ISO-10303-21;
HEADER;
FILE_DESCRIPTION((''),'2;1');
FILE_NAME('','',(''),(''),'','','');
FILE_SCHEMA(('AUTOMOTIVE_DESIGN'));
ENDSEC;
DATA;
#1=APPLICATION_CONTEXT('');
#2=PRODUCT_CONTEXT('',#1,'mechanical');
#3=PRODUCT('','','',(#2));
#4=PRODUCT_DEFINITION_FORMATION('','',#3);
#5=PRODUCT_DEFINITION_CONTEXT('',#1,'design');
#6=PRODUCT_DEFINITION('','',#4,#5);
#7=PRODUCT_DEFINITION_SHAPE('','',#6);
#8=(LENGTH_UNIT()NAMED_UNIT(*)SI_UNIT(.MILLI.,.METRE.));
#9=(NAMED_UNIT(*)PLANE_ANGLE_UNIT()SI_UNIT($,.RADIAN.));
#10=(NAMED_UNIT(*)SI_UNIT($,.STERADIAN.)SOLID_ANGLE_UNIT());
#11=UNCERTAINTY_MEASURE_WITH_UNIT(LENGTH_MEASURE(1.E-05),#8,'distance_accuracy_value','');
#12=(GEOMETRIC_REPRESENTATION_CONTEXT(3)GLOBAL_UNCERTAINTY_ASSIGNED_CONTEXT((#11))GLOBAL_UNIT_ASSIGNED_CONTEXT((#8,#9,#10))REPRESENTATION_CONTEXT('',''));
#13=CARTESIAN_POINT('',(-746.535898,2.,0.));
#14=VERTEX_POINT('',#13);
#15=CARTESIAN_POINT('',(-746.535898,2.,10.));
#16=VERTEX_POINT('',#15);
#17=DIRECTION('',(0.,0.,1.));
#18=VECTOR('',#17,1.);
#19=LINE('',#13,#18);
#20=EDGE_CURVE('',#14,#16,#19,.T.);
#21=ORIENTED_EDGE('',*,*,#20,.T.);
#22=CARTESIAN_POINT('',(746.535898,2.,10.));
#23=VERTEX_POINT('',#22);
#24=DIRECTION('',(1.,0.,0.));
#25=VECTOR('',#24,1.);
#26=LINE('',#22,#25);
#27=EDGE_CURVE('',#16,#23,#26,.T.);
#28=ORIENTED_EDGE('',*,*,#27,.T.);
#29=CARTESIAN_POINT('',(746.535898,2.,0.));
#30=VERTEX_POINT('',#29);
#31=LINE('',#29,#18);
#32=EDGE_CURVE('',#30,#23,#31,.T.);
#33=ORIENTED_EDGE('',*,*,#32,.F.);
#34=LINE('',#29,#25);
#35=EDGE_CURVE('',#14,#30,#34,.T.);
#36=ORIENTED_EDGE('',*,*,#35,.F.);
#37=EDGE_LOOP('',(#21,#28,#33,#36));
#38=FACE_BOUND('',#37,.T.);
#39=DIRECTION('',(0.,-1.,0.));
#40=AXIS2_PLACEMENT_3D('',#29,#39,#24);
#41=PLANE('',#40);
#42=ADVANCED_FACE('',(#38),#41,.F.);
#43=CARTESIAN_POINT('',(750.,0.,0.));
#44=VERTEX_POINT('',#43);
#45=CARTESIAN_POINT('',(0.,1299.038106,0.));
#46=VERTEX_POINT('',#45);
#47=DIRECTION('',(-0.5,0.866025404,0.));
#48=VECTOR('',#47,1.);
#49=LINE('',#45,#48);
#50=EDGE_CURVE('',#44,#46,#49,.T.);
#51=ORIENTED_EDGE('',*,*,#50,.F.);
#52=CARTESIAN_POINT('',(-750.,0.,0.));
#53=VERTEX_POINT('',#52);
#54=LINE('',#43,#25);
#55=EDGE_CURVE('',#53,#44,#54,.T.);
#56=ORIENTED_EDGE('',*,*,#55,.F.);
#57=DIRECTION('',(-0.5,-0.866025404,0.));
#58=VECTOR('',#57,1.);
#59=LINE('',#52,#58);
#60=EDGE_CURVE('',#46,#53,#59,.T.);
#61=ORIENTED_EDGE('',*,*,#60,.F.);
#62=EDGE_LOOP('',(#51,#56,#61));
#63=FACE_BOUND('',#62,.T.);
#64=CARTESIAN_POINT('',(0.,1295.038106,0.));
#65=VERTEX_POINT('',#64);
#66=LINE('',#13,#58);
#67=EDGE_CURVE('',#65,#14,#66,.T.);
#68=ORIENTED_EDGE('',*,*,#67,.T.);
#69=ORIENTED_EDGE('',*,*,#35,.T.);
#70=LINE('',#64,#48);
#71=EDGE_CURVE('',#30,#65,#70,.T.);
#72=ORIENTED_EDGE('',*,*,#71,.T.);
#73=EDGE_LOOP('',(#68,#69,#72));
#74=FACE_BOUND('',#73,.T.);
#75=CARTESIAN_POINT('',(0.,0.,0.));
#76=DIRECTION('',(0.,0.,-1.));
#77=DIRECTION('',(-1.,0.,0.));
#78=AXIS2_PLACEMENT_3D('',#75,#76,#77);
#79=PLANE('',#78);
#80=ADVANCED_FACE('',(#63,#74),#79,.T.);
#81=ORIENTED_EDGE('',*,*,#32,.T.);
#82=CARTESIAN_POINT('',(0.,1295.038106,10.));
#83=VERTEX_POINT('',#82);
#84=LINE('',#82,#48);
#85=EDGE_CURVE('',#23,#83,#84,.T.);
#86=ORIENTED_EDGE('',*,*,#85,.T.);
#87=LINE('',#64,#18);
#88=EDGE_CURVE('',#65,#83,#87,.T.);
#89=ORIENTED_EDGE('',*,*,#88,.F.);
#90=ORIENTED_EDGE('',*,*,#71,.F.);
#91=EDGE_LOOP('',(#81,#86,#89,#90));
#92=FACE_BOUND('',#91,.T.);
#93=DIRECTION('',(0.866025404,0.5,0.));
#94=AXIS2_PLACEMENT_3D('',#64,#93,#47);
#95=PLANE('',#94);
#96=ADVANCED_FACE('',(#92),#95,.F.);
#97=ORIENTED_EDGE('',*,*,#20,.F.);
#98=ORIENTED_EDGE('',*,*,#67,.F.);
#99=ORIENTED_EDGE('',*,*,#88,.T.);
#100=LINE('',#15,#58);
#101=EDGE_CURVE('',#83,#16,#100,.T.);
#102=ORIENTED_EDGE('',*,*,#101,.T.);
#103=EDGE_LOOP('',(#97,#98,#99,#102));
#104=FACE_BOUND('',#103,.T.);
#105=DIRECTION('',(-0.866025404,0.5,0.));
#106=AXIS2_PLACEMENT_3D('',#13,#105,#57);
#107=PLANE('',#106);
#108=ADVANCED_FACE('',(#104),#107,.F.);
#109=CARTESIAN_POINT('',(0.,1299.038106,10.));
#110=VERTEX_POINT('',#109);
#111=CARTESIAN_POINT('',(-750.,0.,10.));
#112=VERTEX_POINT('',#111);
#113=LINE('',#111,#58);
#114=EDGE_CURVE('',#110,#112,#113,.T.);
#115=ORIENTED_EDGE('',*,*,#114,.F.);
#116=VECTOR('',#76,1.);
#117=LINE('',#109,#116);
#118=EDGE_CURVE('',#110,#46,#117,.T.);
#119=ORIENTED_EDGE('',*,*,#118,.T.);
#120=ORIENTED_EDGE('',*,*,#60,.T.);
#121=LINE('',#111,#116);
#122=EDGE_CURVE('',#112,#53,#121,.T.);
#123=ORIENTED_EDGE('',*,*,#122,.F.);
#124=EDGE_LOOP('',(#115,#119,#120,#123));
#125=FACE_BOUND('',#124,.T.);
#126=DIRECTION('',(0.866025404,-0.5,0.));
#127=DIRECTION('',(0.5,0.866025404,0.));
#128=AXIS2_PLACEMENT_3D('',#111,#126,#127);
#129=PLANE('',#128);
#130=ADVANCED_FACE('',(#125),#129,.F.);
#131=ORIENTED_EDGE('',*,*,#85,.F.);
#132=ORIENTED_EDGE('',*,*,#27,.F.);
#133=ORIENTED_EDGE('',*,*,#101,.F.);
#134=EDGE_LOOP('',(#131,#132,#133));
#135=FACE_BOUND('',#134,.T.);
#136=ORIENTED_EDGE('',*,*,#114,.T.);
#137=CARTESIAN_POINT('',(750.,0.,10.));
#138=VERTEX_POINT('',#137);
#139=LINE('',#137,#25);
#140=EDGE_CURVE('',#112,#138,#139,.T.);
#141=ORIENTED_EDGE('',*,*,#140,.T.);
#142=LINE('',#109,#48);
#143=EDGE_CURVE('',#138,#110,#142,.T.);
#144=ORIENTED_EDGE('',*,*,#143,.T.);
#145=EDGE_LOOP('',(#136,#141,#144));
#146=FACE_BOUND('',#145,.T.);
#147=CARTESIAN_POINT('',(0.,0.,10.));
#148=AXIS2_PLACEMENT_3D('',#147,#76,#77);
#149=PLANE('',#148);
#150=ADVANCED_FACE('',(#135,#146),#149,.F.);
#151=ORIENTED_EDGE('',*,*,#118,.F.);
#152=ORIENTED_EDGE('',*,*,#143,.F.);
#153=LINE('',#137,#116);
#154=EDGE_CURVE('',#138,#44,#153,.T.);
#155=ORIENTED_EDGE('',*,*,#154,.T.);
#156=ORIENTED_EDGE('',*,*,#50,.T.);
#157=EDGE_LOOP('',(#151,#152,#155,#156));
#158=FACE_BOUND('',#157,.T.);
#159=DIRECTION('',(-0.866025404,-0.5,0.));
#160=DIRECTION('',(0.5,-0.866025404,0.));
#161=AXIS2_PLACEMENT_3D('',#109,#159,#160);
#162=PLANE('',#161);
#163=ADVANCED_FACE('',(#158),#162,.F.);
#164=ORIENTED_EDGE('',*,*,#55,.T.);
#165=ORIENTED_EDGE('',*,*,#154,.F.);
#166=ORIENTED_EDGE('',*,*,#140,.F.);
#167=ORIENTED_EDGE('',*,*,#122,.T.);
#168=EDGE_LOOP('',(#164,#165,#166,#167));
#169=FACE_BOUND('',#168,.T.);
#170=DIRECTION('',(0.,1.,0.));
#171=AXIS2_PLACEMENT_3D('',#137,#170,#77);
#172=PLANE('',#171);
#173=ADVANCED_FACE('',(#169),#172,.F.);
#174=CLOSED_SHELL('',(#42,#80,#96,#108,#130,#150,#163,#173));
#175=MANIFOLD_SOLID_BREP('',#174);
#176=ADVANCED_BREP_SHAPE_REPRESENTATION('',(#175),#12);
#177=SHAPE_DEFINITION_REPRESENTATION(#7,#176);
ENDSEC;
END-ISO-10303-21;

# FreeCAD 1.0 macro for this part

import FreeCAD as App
import Part
import Sketcher
from FreeCAD import Vector
Q = App.Units.Quantity

doc = App.newDocument("Part")
body = doc.addObject("PartDesign::Body", "Body")

sketch1 = body.newObject("Sketcher::SketchObject", "Sketch")
sketch1.AttachmentSupport = (doc.getObject("XY_Plane"), [""])
sketch1.MapMode = "FlatFace"
sketch1.addGeometry([
    Part.LineSegment(Vector(0, 1299.038106, 0), Vector(-750, 0, 0)),
    Part.LineSegment(Vector(-750, 0, 0), Vector(750, 0, 0)),
    Part.LineSegment(Vector(750, 0, 0), Vector(0, 1299.038106, 0)),
], False)
sketch1.addConstraint([
    Sketcher.Constraint("Coincident", 0, 2, 1, 1),
    Sketcher.Constraint("Coincident", 1, 2, 2, 1),
    Sketcher.Constraint("Coincident", 2, 2, 0, 1),
    Sketcher.Constraint("Horizontal", 1),
    Sketcher.Constraint("Symmetric", 0, 2, 1, 2, -1, 1),
    Sketcher.Constraint("PointOnObject", 2, 2, -2),
    Sketcher.Constraint("DistanceX", 1, 1, 1, 2, Q("1500 mm")),
    Sketcher.Constraint("Angle", 0, Q("-120 deg")),
])
pad1 = body.newObject("PartDesign::Pad", "Pad")
pad1.Profile = sketch1
pad1.Length = 10

sketch2 = body.newObject("Sketcher::SketchObject", "Sketch001")
sketch2.AttachmentSupport = (doc.getObject("XY_Plane"), [""])
sketch2.MapMode = "FlatFace"
sketch2.AttachmentOffset = App.Placement(Vector(0, 0, 10), App.Rotation())
sketch2.addGeometry([
    Part.LineSegment(Vector(0, 1295.038106, 0), Vector(-746.535898, 2, 0)),
    Part.LineSegment(Vector(-746.535898, 2, 0), Vector(746.535898, 2, 0)),
    Part.LineSegment(Vector(746.535898, 2, 0), Vector(0, 1295.038106, 0)),
], False)
sketch2.addConstraint([
    Sketcher.Constraint("Coincident", 0, 2, 1, 1),
    Sketcher.Constraint("Coincident", 1, 2, 2, 1),
    Sketcher.Constraint("Coincident", 2, 2, 0, 1),
    Sketcher.Constraint("Horizontal", 1),
    Sketcher.Constraint("PointOnObject", 2, 2, -2),
    Sketcher.Constraint("Equal", 0, 2),
    Sketcher.Constraint("Angle", 0, Q("-120 deg")),
    Sketcher.Constraint("DistanceY", -1, 1, 0, 2, Q("2 mm")),
    Sketcher.Constraint("DistanceX", 0, 2, -1, 1, Q("746.535898 mm")),
])
pocket1 = body.newObject("PartDesign::Pocket", "Pocket")
pocket1.Profile = sketch2
pocket1.Length = 10

doc.recompute()
